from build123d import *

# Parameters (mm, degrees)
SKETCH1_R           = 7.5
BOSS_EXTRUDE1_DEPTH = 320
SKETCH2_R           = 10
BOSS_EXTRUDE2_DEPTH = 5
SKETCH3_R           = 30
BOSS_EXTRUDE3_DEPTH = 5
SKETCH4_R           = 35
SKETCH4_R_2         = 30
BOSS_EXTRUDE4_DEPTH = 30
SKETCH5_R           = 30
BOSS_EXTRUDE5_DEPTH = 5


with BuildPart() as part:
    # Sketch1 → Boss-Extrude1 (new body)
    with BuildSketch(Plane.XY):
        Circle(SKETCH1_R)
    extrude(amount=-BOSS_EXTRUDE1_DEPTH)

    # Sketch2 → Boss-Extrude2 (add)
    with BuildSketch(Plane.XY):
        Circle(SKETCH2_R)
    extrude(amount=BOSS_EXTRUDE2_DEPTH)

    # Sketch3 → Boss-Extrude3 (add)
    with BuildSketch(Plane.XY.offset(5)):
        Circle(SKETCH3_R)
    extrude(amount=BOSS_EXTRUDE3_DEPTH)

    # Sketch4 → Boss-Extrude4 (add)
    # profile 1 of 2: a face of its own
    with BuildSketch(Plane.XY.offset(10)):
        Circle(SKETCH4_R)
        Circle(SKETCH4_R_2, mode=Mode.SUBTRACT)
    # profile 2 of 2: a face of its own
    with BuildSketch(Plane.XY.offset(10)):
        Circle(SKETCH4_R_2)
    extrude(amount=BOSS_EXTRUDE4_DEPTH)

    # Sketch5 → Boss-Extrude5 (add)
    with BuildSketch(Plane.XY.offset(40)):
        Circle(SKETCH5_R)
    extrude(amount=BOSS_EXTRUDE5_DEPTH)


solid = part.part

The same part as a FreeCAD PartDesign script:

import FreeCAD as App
import Part
import Sketcher
from FreeCAD import Vector
Q = App.Units.Quantity

doc = App.newDocument("Part")
body = doc.addObject("PartDesign::Body", "Body")

# Sketch on XY plane
sketch1 = doc.addObject("Sketcher::SketchObject", "Sketch")
body.addObject(sketch1)
sketch1.AttachmentSupport = (doc.XY_Plane, [""])
sketch1.MapMode = "FlatFace"
sketch1.addGeometry(Part.Circle(Vector(0, 0, 0), Vector(0, 0, 1), 8), False)
sketch1.addConstraint([
    Sketcher.Constraint("Coincident", 0, 3, -1, 1),
    Sketcher.Constraint("Diameter", 0, Q("15 mm")),
])
pad1 = doc.addObject("PartDesign::Pad", "Pad")
body.addObject(pad1)
pad1.Profile = sketch1
pad1.Length = 320
pad1.Reversed = True

# Sketch on XY plane
sketch2 = doc.addObject("Sketcher::SketchObject", "Sketch001")
body.addObject(sketch2)
sketch2.AttachmentSupport = (doc.XY_Plane, [""])
sketch2.MapMode = "FlatFace"
sketch2.addGeometry(Part.Circle(Vector(0, 0, 0), Vector(0, 0, 1), 10), False)
sketch2.addConstraint([
    Sketcher.Constraint("Coincident", 0, 3, -1, 1),
    Sketcher.Constraint("Diameter", 0, Q("20 mm")),
])
pad2 = doc.addObject("PartDesign::Pad", "Pad001")
body.addObject(pad2)
pad2.Profile = sketch2
pad2.Length = 5

# Sketch on XY plane
sketch3 = doc.addObject("Sketcher::SketchObject", "Sketch002")
body.addObject(sketch3)
sketch3.AttachmentSupport = (doc.XY_Plane, [""])
sketch3.MapMode = "FlatFace"
sketch3.AttachmentOffset = App.Placement(Vector(0, 0, 5), App.Rotation())
sketch3.addGeometry(Part.Circle(Vector(0, 0, 0), Vector(0, 0, 1), 30), False)
sketch3.addConstraint([
    Sketcher.Constraint("Coincident", 0, 3, -1, 1),
    Sketcher.Constraint("Diameter", 0, Q("60 mm")),
])
pad3 = doc.addObject("PartDesign::Pad", "Pad002")
body.addObject(pad3)
pad3.Profile = sketch3
pad3.Length = 5

# Sketch on XY plane
sketch4 = doc.addObject("Sketcher::SketchObject", "Sketch003")
body.addObject(sketch4)
sketch4.AttachmentSupport = (doc.XY_Plane, [""])
sketch4.MapMode = "FlatFace"
sketch4.AttachmentOffset = App.Placement(Vector(0, 0, 10), App.Rotation())
sketch4.addGeometry(Part.Circle(Vector(0, 0, 0), Vector(0, 0, 1), 35), False)
sketch4.addConstraint([
    Sketcher.Constraint("Coincident", 0, 3, -1, 1),
    Sketcher.Constraint("Diameter", 0, Q("70 mm")),
])
pad4 = doc.addObject("PartDesign::Pad", "Pad003")
body.addObject(pad4)
pad4.Profile = sketch4
pad4.Length = 30

# Sketch on XY plane
sketch5 = doc.addObject("Sketcher::SketchObject", "Sketch004")
body.addObject(sketch5)
sketch5.AttachmentSupport = (doc.XY_Plane, [""])
sketch5.MapMode = "FlatFace"
sketch5.AttachmentOffset = App.Placement(Vector(0, 0, 40), App.Rotation())
sketch5.addGeometry(Part.Circle(Vector(0, 0, 0), Vector(0, 0, 1), 30), False)
sketch5.addConstraint([
    Sketcher.Constraint("Coincident", 0, 3, -1, 1),
    Sketcher.Constraint("Diameter", 0, Q("60 mm")),
])
pad5 = doc.addObject("PartDesign::Pad", "Pad004")
body.addObject(pad5)
pad5.Profile = sketch5
pad5.Length = 5

doc.recompute()
